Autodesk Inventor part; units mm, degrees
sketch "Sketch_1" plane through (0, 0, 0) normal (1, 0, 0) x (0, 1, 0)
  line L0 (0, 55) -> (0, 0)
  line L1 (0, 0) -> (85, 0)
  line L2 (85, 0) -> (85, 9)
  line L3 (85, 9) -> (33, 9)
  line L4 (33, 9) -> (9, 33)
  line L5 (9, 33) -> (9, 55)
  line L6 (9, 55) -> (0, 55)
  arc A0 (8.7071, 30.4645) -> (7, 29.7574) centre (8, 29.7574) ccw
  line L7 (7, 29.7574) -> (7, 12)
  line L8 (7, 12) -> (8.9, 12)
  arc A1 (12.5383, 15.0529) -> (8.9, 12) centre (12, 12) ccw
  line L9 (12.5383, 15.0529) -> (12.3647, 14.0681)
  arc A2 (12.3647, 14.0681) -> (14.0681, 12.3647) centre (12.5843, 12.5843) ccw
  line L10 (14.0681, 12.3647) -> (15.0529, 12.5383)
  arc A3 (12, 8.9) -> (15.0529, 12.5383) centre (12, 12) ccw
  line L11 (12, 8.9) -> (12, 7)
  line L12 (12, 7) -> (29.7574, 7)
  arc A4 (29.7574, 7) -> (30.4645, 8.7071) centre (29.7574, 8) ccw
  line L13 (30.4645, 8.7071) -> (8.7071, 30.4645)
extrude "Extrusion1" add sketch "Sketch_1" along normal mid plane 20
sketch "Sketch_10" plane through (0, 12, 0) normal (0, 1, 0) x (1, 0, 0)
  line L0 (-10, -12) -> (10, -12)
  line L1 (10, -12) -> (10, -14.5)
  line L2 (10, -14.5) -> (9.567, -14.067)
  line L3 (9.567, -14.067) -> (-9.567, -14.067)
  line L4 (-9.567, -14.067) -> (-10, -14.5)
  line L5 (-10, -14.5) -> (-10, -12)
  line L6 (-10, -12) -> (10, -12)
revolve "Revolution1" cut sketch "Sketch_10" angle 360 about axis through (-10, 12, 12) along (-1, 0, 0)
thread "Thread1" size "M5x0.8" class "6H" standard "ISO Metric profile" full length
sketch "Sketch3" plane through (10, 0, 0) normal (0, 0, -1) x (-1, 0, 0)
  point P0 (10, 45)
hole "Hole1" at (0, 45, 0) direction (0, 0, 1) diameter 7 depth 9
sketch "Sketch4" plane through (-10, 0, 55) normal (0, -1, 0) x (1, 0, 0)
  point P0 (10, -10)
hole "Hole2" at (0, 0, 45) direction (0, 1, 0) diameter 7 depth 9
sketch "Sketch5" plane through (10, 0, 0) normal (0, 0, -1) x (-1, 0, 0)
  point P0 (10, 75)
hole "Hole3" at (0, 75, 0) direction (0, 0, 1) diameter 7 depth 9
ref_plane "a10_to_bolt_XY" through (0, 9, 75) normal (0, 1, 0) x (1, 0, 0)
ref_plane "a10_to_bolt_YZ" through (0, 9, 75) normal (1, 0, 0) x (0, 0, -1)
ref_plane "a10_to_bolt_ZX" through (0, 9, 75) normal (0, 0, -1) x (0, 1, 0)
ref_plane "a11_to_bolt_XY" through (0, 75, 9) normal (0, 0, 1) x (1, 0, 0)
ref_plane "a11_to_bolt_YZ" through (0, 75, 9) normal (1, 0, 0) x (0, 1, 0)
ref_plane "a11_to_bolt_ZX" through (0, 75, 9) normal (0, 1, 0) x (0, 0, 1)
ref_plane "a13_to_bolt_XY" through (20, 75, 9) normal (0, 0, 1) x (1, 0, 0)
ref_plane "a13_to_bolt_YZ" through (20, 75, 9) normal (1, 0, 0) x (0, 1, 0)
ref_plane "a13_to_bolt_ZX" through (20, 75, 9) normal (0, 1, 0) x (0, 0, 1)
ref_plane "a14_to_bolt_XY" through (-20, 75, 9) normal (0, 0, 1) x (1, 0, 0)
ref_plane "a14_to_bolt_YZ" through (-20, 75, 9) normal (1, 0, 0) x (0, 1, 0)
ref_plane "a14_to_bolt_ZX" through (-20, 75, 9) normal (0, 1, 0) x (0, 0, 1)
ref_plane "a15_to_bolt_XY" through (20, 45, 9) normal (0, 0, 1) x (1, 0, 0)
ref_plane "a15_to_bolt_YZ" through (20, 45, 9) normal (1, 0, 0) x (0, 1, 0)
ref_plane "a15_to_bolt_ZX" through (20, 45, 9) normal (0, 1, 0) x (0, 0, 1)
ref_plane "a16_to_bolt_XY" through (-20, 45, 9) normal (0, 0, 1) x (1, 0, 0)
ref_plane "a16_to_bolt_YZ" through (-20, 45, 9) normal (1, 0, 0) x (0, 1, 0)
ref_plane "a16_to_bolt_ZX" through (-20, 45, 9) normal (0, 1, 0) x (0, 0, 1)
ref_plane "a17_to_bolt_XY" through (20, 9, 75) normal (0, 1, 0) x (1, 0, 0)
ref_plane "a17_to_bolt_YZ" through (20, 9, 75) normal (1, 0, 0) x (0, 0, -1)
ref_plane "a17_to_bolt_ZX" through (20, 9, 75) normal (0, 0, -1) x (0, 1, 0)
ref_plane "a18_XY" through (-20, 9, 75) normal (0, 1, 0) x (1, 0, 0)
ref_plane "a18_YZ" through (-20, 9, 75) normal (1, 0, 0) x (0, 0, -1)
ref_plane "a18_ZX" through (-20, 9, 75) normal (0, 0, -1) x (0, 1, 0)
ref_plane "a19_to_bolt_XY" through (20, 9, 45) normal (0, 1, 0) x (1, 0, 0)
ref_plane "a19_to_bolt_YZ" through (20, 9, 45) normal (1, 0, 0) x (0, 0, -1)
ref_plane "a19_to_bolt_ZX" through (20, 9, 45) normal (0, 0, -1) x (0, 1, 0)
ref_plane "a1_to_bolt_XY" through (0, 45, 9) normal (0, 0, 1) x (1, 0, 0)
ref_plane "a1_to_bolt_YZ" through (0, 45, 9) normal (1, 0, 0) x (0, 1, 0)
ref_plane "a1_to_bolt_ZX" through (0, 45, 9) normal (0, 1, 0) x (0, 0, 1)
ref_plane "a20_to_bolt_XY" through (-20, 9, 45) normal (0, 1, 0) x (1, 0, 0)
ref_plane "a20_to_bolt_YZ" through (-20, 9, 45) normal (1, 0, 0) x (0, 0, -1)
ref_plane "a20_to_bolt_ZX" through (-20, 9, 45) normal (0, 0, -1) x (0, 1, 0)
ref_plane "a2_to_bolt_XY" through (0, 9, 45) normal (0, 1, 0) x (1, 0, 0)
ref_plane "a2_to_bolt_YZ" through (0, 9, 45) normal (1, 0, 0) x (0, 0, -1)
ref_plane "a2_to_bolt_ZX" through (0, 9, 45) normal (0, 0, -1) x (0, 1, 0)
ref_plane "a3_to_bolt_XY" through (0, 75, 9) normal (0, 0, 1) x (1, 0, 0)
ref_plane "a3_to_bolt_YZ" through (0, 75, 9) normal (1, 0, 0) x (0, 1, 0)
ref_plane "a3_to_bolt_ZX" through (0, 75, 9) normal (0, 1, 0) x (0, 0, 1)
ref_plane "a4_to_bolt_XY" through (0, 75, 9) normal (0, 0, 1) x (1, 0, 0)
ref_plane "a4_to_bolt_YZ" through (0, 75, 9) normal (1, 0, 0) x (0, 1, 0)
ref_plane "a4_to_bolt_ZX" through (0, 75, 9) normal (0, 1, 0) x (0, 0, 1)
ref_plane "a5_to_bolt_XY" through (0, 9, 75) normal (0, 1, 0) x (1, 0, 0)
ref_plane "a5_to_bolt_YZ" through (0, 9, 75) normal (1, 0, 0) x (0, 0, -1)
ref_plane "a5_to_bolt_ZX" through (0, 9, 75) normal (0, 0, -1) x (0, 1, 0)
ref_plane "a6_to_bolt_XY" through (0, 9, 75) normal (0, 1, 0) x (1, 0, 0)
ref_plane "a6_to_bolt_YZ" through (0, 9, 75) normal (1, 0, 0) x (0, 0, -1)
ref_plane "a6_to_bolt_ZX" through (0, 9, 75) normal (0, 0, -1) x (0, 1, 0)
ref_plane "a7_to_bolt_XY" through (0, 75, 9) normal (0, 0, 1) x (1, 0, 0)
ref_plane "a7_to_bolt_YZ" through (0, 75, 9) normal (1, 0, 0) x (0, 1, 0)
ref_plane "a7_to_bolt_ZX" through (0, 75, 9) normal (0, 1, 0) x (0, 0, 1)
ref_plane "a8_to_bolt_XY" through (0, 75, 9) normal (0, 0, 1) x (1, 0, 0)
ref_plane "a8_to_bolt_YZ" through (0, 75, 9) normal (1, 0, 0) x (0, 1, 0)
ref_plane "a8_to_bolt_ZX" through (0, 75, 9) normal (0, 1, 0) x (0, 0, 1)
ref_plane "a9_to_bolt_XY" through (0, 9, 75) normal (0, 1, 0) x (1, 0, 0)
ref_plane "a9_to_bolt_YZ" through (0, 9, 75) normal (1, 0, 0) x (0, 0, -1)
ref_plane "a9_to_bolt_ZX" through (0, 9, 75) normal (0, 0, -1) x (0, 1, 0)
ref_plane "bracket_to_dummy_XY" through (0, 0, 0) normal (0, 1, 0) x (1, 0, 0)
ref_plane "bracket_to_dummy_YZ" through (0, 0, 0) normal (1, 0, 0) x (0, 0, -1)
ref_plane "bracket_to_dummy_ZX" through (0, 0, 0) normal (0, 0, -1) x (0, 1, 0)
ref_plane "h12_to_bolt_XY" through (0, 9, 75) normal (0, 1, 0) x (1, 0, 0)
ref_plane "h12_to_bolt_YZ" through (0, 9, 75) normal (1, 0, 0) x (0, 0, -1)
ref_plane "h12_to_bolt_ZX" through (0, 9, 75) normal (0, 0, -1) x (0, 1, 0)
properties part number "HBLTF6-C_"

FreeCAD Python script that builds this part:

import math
import FreeCAD as App
import Part
import Sketcher

V = App.Vector

doc = App.newDocument("Part")
params = doc.addObject("Spreadsheet::Sheet", "Params")
for row, (alias, value) in enumerate([
    ("sketch1_radius", "1 mm"),
    ("sketch1_radius2", "3.1 mm"),
    ("sketch1_radius3", "1.5 mm"),
    ("sketch1_width", "9 mm"),
    ("sketch1_width2", "85 mm"),
    ("pad1_length", "20 mm"),
    ("sketch2_width", "20 mm"),
    ("sketch2_height", "2.5 mm"),
    ("groove_angle", "360 deg"),
    ("sketch3_diameter", "7 mm"),
    ("hole_diameter", "7 mm"),
    ("hole_depth", "9 mm"),
    ("sketch4_diameter", "7 mm"),
    ("hole2_diameter", "7 mm"),
    ("hole2_depth", "9 mm"),
    ("sketch5_diameter", "7 mm"),
    ("hole3_diameter", "7 mm"),
    ("hole3_depth", "9 mm"),
], start=1):
    params.set(f"A{row}", alias)
    params.set(f"B{row}", "=" + value)
    params.setAlias(f"B{row}", alias)

body = doc.addObject("PartDesign::Body", "Body")

sketch1 = doc.addObject("Sketcher::SketchObject", "Sketch")
body.addObject(sketch1)
sketch1.AttachmentSupport = (doc.YZ_Plane, [""])
sketch1.MapMode = "FlatFace"
sketch1.addGeometry([
    Part.LineSegment(V(9, 55, 0), V(0, 55, 0)),
    Part.LineSegment(V(0, 55, 0), V(0, 0, 0)),
    Part.LineSegment(V(0, 0, 0), V(85, 0, 0)),
    Part.LineSegment(V(85, 0, 0), V(85, 9, 0)),
    Part.LineSegment(V(85, 9, 0), V(33, 9, 0)),
    Part.LineSegment(V(33, 9, 0), V(9, 33, 0)),
    Part.LineSegment(V(9, 33, 0), V(9, 55, 0)),
    Part.ArcOfCircle(Part.Circle(V(8, 29.8, 0), V(0, 0, 1), 1), math.radians(45), math.radians(180)),
    Part.LineSegment(V(8.7, 30.5, 0), V(30.5, 8.7, 0)),
    Part.ArcOfCircle(Part.Circle(V(29.8, 8, 0), V(0, 0, 1), 1), math.radians(-90), math.radians(45)),
    Part.LineSegment(V(29.8, 7, 0), V(12, 7, 0)),
    Part.LineSegment(V(12, 7, 0), V(12, 8.9, 0)),
    Part.ArcOfCircle(Part.Circle(V(12, 12, 0), V(0, 0, 1), 3.1), math.radians(-90), math.radians(10)),
    Part.LineSegment(V(15.1, 12.5, 0), V(14.1, 12.4, 0)),
    Part.ArcOfCircle(Part.Circle(V(12.6, 12.6, 0), V(0, 0, 1), 1.5), math.radians(98), math.radians(352)),
    Part.LineSegment(V(12.4, 14.1, 0), V(12.5, 15.1, 0)),
    Part.ArcOfCircle(Part.Circle(V(12, 12, 0), V(0, 0, 1), 3.1), math.radians(80), math.radians(180)),
    Part.LineSegment(V(8.9, 12, 0), V(7, 12, 0)),
    Part.LineSegment(V(7, 12, 0), V(7, 29.8, 0)),
], False)
sketch1.addConstraint([
    Sketcher.Constraint("Coincident", 0, 2, 1, 1),
    Sketcher.Constraint("Coincident", 1, 2, 2, 1),
    Sketcher.Constraint("Coincident", 2, 2, 3, 1),
    Sketcher.Constraint("Coincident", 3, 2, 4, 1),
    Sketcher.Constraint("Coincident", 4, 2, 5, 1),
    Sketcher.Constraint("Coincident", 5, 2, 6, 1),
    Sketcher.Constraint("Coincident", 6, 2, 0, 1),
    Sketcher.Constraint("Tangent", 7, 1, 8, 1),
    Sketcher.Constraint("Tangent", 8, 2, 9, 2),
    Sketcher.Constraint("Tangent", 9, 1, 10, 1),
    Sketcher.Constraint("Coincident", 10, 2, 11, 1),
    Sketcher.Constraint("Coincident", 11, 2, 12, 1),
    Sketcher.Constraint("Coincident", 12, 2, 13, 1),
    Sketcher.Constraint("Coincident", 13, 2, 14, 2),
    Sketcher.Constraint("Coincident", 14, 1, 15, 1),
    Sketcher.Constraint("Coincident", 15, 2, 16, 1),
    Sketcher.Constraint("Coincident", 16, 2, 17, 1),
    Sketcher.Constraint("Coincident", 17, 2, 18, 1),
    Sketcher.Constraint("Tangent", 18, 2, 7, 2),
    Sketcher.Constraint("Horizontal", 0),
    Sketcher.Constraint("Vertical", 1),
    Sketcher.Constraint("Horizontal", 2),
    Sketcher.Constraint("Vertical", 3),
    Sketcher.Constraint("Horizontal", 4),
    Sketcher.Constraint("Vertical", 6),
    Sketcher.Constraint("Horizontal", 10),
    Sketcher.Constraint("Vertical", 11),
    Sketcher.Constraint("Horizontal", 17),
    Sketcher.Constraint("Vertical", 18),
    Sketcher.Constraint("Coincident", 1, 2, -1, 1),
    Sketcher.Constraint("Coincident", 16, 3, 12, 3),
    Sketcher.Constraint("Equal", 7, 9),
    Sketcher.Constraint("Equal", 12, 16),
    Sketcher.Constraint("Parallel", 5, 8),
    Sketcher.Constraint("Horizontal", 12, 3, 16, 2),
    Sketcher.Constraint("Vertical", 16, 3, 10, 2),
    Sketcher.Constraint("Equal", 0, 3),
    Sketcher.Constraint("Equal", 17, 11),
    Sketcher.Constraint("Equal", 10, 18),
    Sketcher.Constraint("Equal", 13, 15),
    Sketcher.Constraint("Radius", 7, 1.0),
    Sketcher.Constraint("Radius", 12, 3.1),
    Sketcher.Constraint("Radius", 14, 1.5),
    Sketcher.Constraint("DistanceX", 0, 2, 0, 1, 9.0),
    Sketcher.Constraint("DistanceX", 2, 1, 2, 2, 85.0),
    Sketcher.Constraint("DistanceX", 4, 2, 4, 1, 52.0),
    Sketcher.Constraint("DistanceY", 1, 2, 1, 1, 55.0),
    Sketcher.Constraint("Distance", 13, 1.0),
    Sketcher.Constraint("DistanceX", 17, 2, 17, 1, 1.9),
    Sketcher.Constraint("DistanceX", -1, 1, 7, 3, 8.0),
    Sketcher.Constraint("DistanceY", -1, 1, 9, 3, 8.0),
    Sketcher.Constraint("DistanceX", 10, 2, 10, 1, 17.7574),
    Sketcher.Constraint("DistanceX", -1, 1, 12, 2, 15.053),
    Sketcher.Constraint("DistanceX", -1, 1, 13, 2, 14.068),
    Sketcher.Constraint("DistanceY", -1, 1, 14, 1, 14.068),
    Sketcher.Constraint("DistanceY", -1, 1, 15, 2, 15.053),
])
sketch1.setExpression("Constraints[40]", "Params.sketch1_radius")
sketch1.setExpression("Constraints[41]", "Params.sketch1_radius2")
sketch1.setExpression("Constraints[42]", "Params.sketch1_radius3")
sketch1.setExpression("Constraints[43]", "Params.sketch1_width")
sketch1.setExpression("Constraints[44]", "Params.sketch1_width2")
pad1 = doc.addObject("PartDesign::Pad", "Pad")
body.addObject(pad1)
pad1.Profile = sketch1
pad1.setExpression("Length", "Params.pad1_length")
pad1.Midplane = True

sketch2 = doc.addObject("Sketcher::SketchObject", "Sketch001")
body.addObject(sketch2)
sketch2.AttachmentSupport = (doc.XZ_Plane, [""])
sketch2.MapMode = "FlatFace"
sketch2.AttachmentOffset = App.Placement(V(0, 0, -12), App.Rotation())
sketch2.addGeometry([
    Part.LineSegment(V(10, 12, 0), V(-10, 12, 0)),
    Part.LineSegment(V(-10, 12, 0), V(-10, 14.5, 0)),
    Part.LineSegment(V(-10, 14.5, 0), V(-9.6, 14.1, 0)),
    Part.LineSegment(V(-9.6, 14.1, 0), V(9.6, 14.1, 0)),
    Part.LineSegment(V(9.6, 14.1, 0), V(10, 14.5, 0)),
    Part.LineSegment(V(10, 14.5, 0), V(10, 12, 0)),
], False)
sketch2.addGeometry(Part.LineSegment(V(10, 12, 0), V(-10, 12, 0)), True)
sketch2.addConstraint([
    Sketcher.Constraint("Coincident", 0, 2, 1, 1),
    Sketcher.Constraint("Coincident", 1, 2, 2, 1),
    Sketcher.Constraint("Coincident", 2, 2, 3, 1),
    Sketcher.Constraint("Coincident", 3, 2, 4, 1),
    Sketcher.Constraint("Coincident", 4, 2, 5, 1),
    Sketcher.Constraint("Coincident", 5, 2, 0, 1),
    Sketcher.Constraint("Horizontal", 0),
    Sketcher.Constraint("Vertical", 1),
    Sketcher.Constraint("Horizontal", 3),
    Sketcher.Constraint("Vertical", 5),
    Sketcher.Constraint("Horizontal", 6),
    Sketcher.Constraint("Coincident", 6, 1, 5, 2),
    Sketcher.Constraint("Symmetric", 1, 2, 4, 2, -2),
    Sketcher.Constraint("Perpendicular", 2, 4),
    Sketcher.Constraint("Vertical", 1, 2, 6, 2),
    Sketcher.Constraint("Equal", 2, 4),
    Sketcher.Constraint("DistanceX", 0, 2, 0, 1, 20.0),
    Sketcher.Constraint("DistanceY", 1, 1, 1, 2, 2.5),
    Sketcher.Constraint("DistanceY", -1, 1, 0, 2, 12.0),
    Sketcher.Constraint("DistanceX", 3, 1, 3, 2, 19.134),
])
sketch2.setExpression("Constraints[16]", "Params.sketch2_width")
sketch2.setExpression("Constraints[17]", "Params.sketch2_height")
groove = doc.addObject("PartDesign::Groove", "Groove")
body.addObject(groove)
groove.Profile = sketch2
groove.ReferenceAxis = (sketch2, ["Axis0"])
groove.setExpression("Angle", "Params.groove_angle")

sketch3 = doc.addObject("Sketcher::SketchObject", "Sketch002")
body.addObject(sketch3)
sketch3.AttachmentSupport = (doc.XY_Plane, [""])
sketch3.MapMode = "FlatFace"
sketch3.addGeometry(Part.Circle(V(0, 45, 0), V(0, 0, 1), 3.5), False)
sketch3.addConstraint([
    Sketcher.Constraint("PointOnObject", 0, 3, -2),
    Sketcher.Constraint("Diameter", 0, 7.0),
    Sketcher.Constraint("DistanceY", -1, 1, 0, 3, 45.0),
])
sketch3.setExpression("Constraints[1]", "Params.sketch3_diameter")
doc.recompute()
hole = doc.addObject("PartDesign::Hole", "Hole")
body.addObject(hole)
hole.Profile = sketch3
hole.ThreadType = "None"
hole.setExpression("Diameter", "Params.hole_diameter")
hole.DepthType = "Dimension"
hole.setExpression("Depth", "Params.hole_depth")
hole.DrillPoint = "Flat"
hole.Reversed = True

sketch4 = doc.addObject("Sketcher::SketchObject", "Sketch003")
body.addObject(sketch4)
sketch4.AttachmentSupport = (doc.XZ_Plane, [""])
sketch4.MapMode = "FlatFace"
sketch4.addGeometry(Part.Circle(V(0, 45, 0), V(0, 0, 1), 3.5), False)
sketch4.addConstraint([
    Sketcher.Constraint("PointOnObject", 0, 3, -2),
    Sketcher.Constraint("Diameter", 0, 7.0),
    Sketcher.Constraint("DistanceY", -1, 1, 0, 3, 45.0),
])
sketch4.setExpression("Constraints[1]", "Params.sketch4_diameter")
doc.recompute()
hole2 = doc.addObject("PartDesign::Hole", "Hole001")
body.addObject(hole2)
hole2.Profile = sketch4
hole2.ThreadType = "None"
hole2.setExpression("Diameter", "Params.hole2_diameter")
hole2.DepthType = "Dimension"
hole2.setExpression("Depth", "Params.hole2_depth")
hole2.DrillPoint = "Flat"

sketch5 = doc.addObject("Sketcher::SketchObject", "Sketch004")
body.addObject(sketch5)
sketch5.AttachmentSupport = (doc.XY_Plane, [""])
sketch5.MapMode = "FlatFace"
sketch5.addGeometry(Part.Circle(V(0, 75, 0), V(0, 0, 1), 3.5), False)
sketch5.addConstraint([
    Sketcher.Constraint("PointOnObject", 0, 3, -2),
    Sketcher.Constraint("Diameter", 0, 7.0),
    Sketcher.Constraint("DistanceY", -1, 1, 0, 3, 75.0),
])
sketch5.setExpression("Constraints[1]", "Params.sketch5_diameter")
doc.recompute()
hole3 = doc.addObject("PartDesign::Hole", "Hole002")
body.addObject(hole3)
hole3.Profile = sketch5
hole3.ThreadType = "None"
hole3.setExpression("Diameter", "Params.hole3_diameter")
hole3.DepthType = "Dimension"
hole3.setExpression("Depth", "Params.hole3_depth")
hole3.DrillPoint = "Flat"
hole3.Reversed = True

doc.recompute()
